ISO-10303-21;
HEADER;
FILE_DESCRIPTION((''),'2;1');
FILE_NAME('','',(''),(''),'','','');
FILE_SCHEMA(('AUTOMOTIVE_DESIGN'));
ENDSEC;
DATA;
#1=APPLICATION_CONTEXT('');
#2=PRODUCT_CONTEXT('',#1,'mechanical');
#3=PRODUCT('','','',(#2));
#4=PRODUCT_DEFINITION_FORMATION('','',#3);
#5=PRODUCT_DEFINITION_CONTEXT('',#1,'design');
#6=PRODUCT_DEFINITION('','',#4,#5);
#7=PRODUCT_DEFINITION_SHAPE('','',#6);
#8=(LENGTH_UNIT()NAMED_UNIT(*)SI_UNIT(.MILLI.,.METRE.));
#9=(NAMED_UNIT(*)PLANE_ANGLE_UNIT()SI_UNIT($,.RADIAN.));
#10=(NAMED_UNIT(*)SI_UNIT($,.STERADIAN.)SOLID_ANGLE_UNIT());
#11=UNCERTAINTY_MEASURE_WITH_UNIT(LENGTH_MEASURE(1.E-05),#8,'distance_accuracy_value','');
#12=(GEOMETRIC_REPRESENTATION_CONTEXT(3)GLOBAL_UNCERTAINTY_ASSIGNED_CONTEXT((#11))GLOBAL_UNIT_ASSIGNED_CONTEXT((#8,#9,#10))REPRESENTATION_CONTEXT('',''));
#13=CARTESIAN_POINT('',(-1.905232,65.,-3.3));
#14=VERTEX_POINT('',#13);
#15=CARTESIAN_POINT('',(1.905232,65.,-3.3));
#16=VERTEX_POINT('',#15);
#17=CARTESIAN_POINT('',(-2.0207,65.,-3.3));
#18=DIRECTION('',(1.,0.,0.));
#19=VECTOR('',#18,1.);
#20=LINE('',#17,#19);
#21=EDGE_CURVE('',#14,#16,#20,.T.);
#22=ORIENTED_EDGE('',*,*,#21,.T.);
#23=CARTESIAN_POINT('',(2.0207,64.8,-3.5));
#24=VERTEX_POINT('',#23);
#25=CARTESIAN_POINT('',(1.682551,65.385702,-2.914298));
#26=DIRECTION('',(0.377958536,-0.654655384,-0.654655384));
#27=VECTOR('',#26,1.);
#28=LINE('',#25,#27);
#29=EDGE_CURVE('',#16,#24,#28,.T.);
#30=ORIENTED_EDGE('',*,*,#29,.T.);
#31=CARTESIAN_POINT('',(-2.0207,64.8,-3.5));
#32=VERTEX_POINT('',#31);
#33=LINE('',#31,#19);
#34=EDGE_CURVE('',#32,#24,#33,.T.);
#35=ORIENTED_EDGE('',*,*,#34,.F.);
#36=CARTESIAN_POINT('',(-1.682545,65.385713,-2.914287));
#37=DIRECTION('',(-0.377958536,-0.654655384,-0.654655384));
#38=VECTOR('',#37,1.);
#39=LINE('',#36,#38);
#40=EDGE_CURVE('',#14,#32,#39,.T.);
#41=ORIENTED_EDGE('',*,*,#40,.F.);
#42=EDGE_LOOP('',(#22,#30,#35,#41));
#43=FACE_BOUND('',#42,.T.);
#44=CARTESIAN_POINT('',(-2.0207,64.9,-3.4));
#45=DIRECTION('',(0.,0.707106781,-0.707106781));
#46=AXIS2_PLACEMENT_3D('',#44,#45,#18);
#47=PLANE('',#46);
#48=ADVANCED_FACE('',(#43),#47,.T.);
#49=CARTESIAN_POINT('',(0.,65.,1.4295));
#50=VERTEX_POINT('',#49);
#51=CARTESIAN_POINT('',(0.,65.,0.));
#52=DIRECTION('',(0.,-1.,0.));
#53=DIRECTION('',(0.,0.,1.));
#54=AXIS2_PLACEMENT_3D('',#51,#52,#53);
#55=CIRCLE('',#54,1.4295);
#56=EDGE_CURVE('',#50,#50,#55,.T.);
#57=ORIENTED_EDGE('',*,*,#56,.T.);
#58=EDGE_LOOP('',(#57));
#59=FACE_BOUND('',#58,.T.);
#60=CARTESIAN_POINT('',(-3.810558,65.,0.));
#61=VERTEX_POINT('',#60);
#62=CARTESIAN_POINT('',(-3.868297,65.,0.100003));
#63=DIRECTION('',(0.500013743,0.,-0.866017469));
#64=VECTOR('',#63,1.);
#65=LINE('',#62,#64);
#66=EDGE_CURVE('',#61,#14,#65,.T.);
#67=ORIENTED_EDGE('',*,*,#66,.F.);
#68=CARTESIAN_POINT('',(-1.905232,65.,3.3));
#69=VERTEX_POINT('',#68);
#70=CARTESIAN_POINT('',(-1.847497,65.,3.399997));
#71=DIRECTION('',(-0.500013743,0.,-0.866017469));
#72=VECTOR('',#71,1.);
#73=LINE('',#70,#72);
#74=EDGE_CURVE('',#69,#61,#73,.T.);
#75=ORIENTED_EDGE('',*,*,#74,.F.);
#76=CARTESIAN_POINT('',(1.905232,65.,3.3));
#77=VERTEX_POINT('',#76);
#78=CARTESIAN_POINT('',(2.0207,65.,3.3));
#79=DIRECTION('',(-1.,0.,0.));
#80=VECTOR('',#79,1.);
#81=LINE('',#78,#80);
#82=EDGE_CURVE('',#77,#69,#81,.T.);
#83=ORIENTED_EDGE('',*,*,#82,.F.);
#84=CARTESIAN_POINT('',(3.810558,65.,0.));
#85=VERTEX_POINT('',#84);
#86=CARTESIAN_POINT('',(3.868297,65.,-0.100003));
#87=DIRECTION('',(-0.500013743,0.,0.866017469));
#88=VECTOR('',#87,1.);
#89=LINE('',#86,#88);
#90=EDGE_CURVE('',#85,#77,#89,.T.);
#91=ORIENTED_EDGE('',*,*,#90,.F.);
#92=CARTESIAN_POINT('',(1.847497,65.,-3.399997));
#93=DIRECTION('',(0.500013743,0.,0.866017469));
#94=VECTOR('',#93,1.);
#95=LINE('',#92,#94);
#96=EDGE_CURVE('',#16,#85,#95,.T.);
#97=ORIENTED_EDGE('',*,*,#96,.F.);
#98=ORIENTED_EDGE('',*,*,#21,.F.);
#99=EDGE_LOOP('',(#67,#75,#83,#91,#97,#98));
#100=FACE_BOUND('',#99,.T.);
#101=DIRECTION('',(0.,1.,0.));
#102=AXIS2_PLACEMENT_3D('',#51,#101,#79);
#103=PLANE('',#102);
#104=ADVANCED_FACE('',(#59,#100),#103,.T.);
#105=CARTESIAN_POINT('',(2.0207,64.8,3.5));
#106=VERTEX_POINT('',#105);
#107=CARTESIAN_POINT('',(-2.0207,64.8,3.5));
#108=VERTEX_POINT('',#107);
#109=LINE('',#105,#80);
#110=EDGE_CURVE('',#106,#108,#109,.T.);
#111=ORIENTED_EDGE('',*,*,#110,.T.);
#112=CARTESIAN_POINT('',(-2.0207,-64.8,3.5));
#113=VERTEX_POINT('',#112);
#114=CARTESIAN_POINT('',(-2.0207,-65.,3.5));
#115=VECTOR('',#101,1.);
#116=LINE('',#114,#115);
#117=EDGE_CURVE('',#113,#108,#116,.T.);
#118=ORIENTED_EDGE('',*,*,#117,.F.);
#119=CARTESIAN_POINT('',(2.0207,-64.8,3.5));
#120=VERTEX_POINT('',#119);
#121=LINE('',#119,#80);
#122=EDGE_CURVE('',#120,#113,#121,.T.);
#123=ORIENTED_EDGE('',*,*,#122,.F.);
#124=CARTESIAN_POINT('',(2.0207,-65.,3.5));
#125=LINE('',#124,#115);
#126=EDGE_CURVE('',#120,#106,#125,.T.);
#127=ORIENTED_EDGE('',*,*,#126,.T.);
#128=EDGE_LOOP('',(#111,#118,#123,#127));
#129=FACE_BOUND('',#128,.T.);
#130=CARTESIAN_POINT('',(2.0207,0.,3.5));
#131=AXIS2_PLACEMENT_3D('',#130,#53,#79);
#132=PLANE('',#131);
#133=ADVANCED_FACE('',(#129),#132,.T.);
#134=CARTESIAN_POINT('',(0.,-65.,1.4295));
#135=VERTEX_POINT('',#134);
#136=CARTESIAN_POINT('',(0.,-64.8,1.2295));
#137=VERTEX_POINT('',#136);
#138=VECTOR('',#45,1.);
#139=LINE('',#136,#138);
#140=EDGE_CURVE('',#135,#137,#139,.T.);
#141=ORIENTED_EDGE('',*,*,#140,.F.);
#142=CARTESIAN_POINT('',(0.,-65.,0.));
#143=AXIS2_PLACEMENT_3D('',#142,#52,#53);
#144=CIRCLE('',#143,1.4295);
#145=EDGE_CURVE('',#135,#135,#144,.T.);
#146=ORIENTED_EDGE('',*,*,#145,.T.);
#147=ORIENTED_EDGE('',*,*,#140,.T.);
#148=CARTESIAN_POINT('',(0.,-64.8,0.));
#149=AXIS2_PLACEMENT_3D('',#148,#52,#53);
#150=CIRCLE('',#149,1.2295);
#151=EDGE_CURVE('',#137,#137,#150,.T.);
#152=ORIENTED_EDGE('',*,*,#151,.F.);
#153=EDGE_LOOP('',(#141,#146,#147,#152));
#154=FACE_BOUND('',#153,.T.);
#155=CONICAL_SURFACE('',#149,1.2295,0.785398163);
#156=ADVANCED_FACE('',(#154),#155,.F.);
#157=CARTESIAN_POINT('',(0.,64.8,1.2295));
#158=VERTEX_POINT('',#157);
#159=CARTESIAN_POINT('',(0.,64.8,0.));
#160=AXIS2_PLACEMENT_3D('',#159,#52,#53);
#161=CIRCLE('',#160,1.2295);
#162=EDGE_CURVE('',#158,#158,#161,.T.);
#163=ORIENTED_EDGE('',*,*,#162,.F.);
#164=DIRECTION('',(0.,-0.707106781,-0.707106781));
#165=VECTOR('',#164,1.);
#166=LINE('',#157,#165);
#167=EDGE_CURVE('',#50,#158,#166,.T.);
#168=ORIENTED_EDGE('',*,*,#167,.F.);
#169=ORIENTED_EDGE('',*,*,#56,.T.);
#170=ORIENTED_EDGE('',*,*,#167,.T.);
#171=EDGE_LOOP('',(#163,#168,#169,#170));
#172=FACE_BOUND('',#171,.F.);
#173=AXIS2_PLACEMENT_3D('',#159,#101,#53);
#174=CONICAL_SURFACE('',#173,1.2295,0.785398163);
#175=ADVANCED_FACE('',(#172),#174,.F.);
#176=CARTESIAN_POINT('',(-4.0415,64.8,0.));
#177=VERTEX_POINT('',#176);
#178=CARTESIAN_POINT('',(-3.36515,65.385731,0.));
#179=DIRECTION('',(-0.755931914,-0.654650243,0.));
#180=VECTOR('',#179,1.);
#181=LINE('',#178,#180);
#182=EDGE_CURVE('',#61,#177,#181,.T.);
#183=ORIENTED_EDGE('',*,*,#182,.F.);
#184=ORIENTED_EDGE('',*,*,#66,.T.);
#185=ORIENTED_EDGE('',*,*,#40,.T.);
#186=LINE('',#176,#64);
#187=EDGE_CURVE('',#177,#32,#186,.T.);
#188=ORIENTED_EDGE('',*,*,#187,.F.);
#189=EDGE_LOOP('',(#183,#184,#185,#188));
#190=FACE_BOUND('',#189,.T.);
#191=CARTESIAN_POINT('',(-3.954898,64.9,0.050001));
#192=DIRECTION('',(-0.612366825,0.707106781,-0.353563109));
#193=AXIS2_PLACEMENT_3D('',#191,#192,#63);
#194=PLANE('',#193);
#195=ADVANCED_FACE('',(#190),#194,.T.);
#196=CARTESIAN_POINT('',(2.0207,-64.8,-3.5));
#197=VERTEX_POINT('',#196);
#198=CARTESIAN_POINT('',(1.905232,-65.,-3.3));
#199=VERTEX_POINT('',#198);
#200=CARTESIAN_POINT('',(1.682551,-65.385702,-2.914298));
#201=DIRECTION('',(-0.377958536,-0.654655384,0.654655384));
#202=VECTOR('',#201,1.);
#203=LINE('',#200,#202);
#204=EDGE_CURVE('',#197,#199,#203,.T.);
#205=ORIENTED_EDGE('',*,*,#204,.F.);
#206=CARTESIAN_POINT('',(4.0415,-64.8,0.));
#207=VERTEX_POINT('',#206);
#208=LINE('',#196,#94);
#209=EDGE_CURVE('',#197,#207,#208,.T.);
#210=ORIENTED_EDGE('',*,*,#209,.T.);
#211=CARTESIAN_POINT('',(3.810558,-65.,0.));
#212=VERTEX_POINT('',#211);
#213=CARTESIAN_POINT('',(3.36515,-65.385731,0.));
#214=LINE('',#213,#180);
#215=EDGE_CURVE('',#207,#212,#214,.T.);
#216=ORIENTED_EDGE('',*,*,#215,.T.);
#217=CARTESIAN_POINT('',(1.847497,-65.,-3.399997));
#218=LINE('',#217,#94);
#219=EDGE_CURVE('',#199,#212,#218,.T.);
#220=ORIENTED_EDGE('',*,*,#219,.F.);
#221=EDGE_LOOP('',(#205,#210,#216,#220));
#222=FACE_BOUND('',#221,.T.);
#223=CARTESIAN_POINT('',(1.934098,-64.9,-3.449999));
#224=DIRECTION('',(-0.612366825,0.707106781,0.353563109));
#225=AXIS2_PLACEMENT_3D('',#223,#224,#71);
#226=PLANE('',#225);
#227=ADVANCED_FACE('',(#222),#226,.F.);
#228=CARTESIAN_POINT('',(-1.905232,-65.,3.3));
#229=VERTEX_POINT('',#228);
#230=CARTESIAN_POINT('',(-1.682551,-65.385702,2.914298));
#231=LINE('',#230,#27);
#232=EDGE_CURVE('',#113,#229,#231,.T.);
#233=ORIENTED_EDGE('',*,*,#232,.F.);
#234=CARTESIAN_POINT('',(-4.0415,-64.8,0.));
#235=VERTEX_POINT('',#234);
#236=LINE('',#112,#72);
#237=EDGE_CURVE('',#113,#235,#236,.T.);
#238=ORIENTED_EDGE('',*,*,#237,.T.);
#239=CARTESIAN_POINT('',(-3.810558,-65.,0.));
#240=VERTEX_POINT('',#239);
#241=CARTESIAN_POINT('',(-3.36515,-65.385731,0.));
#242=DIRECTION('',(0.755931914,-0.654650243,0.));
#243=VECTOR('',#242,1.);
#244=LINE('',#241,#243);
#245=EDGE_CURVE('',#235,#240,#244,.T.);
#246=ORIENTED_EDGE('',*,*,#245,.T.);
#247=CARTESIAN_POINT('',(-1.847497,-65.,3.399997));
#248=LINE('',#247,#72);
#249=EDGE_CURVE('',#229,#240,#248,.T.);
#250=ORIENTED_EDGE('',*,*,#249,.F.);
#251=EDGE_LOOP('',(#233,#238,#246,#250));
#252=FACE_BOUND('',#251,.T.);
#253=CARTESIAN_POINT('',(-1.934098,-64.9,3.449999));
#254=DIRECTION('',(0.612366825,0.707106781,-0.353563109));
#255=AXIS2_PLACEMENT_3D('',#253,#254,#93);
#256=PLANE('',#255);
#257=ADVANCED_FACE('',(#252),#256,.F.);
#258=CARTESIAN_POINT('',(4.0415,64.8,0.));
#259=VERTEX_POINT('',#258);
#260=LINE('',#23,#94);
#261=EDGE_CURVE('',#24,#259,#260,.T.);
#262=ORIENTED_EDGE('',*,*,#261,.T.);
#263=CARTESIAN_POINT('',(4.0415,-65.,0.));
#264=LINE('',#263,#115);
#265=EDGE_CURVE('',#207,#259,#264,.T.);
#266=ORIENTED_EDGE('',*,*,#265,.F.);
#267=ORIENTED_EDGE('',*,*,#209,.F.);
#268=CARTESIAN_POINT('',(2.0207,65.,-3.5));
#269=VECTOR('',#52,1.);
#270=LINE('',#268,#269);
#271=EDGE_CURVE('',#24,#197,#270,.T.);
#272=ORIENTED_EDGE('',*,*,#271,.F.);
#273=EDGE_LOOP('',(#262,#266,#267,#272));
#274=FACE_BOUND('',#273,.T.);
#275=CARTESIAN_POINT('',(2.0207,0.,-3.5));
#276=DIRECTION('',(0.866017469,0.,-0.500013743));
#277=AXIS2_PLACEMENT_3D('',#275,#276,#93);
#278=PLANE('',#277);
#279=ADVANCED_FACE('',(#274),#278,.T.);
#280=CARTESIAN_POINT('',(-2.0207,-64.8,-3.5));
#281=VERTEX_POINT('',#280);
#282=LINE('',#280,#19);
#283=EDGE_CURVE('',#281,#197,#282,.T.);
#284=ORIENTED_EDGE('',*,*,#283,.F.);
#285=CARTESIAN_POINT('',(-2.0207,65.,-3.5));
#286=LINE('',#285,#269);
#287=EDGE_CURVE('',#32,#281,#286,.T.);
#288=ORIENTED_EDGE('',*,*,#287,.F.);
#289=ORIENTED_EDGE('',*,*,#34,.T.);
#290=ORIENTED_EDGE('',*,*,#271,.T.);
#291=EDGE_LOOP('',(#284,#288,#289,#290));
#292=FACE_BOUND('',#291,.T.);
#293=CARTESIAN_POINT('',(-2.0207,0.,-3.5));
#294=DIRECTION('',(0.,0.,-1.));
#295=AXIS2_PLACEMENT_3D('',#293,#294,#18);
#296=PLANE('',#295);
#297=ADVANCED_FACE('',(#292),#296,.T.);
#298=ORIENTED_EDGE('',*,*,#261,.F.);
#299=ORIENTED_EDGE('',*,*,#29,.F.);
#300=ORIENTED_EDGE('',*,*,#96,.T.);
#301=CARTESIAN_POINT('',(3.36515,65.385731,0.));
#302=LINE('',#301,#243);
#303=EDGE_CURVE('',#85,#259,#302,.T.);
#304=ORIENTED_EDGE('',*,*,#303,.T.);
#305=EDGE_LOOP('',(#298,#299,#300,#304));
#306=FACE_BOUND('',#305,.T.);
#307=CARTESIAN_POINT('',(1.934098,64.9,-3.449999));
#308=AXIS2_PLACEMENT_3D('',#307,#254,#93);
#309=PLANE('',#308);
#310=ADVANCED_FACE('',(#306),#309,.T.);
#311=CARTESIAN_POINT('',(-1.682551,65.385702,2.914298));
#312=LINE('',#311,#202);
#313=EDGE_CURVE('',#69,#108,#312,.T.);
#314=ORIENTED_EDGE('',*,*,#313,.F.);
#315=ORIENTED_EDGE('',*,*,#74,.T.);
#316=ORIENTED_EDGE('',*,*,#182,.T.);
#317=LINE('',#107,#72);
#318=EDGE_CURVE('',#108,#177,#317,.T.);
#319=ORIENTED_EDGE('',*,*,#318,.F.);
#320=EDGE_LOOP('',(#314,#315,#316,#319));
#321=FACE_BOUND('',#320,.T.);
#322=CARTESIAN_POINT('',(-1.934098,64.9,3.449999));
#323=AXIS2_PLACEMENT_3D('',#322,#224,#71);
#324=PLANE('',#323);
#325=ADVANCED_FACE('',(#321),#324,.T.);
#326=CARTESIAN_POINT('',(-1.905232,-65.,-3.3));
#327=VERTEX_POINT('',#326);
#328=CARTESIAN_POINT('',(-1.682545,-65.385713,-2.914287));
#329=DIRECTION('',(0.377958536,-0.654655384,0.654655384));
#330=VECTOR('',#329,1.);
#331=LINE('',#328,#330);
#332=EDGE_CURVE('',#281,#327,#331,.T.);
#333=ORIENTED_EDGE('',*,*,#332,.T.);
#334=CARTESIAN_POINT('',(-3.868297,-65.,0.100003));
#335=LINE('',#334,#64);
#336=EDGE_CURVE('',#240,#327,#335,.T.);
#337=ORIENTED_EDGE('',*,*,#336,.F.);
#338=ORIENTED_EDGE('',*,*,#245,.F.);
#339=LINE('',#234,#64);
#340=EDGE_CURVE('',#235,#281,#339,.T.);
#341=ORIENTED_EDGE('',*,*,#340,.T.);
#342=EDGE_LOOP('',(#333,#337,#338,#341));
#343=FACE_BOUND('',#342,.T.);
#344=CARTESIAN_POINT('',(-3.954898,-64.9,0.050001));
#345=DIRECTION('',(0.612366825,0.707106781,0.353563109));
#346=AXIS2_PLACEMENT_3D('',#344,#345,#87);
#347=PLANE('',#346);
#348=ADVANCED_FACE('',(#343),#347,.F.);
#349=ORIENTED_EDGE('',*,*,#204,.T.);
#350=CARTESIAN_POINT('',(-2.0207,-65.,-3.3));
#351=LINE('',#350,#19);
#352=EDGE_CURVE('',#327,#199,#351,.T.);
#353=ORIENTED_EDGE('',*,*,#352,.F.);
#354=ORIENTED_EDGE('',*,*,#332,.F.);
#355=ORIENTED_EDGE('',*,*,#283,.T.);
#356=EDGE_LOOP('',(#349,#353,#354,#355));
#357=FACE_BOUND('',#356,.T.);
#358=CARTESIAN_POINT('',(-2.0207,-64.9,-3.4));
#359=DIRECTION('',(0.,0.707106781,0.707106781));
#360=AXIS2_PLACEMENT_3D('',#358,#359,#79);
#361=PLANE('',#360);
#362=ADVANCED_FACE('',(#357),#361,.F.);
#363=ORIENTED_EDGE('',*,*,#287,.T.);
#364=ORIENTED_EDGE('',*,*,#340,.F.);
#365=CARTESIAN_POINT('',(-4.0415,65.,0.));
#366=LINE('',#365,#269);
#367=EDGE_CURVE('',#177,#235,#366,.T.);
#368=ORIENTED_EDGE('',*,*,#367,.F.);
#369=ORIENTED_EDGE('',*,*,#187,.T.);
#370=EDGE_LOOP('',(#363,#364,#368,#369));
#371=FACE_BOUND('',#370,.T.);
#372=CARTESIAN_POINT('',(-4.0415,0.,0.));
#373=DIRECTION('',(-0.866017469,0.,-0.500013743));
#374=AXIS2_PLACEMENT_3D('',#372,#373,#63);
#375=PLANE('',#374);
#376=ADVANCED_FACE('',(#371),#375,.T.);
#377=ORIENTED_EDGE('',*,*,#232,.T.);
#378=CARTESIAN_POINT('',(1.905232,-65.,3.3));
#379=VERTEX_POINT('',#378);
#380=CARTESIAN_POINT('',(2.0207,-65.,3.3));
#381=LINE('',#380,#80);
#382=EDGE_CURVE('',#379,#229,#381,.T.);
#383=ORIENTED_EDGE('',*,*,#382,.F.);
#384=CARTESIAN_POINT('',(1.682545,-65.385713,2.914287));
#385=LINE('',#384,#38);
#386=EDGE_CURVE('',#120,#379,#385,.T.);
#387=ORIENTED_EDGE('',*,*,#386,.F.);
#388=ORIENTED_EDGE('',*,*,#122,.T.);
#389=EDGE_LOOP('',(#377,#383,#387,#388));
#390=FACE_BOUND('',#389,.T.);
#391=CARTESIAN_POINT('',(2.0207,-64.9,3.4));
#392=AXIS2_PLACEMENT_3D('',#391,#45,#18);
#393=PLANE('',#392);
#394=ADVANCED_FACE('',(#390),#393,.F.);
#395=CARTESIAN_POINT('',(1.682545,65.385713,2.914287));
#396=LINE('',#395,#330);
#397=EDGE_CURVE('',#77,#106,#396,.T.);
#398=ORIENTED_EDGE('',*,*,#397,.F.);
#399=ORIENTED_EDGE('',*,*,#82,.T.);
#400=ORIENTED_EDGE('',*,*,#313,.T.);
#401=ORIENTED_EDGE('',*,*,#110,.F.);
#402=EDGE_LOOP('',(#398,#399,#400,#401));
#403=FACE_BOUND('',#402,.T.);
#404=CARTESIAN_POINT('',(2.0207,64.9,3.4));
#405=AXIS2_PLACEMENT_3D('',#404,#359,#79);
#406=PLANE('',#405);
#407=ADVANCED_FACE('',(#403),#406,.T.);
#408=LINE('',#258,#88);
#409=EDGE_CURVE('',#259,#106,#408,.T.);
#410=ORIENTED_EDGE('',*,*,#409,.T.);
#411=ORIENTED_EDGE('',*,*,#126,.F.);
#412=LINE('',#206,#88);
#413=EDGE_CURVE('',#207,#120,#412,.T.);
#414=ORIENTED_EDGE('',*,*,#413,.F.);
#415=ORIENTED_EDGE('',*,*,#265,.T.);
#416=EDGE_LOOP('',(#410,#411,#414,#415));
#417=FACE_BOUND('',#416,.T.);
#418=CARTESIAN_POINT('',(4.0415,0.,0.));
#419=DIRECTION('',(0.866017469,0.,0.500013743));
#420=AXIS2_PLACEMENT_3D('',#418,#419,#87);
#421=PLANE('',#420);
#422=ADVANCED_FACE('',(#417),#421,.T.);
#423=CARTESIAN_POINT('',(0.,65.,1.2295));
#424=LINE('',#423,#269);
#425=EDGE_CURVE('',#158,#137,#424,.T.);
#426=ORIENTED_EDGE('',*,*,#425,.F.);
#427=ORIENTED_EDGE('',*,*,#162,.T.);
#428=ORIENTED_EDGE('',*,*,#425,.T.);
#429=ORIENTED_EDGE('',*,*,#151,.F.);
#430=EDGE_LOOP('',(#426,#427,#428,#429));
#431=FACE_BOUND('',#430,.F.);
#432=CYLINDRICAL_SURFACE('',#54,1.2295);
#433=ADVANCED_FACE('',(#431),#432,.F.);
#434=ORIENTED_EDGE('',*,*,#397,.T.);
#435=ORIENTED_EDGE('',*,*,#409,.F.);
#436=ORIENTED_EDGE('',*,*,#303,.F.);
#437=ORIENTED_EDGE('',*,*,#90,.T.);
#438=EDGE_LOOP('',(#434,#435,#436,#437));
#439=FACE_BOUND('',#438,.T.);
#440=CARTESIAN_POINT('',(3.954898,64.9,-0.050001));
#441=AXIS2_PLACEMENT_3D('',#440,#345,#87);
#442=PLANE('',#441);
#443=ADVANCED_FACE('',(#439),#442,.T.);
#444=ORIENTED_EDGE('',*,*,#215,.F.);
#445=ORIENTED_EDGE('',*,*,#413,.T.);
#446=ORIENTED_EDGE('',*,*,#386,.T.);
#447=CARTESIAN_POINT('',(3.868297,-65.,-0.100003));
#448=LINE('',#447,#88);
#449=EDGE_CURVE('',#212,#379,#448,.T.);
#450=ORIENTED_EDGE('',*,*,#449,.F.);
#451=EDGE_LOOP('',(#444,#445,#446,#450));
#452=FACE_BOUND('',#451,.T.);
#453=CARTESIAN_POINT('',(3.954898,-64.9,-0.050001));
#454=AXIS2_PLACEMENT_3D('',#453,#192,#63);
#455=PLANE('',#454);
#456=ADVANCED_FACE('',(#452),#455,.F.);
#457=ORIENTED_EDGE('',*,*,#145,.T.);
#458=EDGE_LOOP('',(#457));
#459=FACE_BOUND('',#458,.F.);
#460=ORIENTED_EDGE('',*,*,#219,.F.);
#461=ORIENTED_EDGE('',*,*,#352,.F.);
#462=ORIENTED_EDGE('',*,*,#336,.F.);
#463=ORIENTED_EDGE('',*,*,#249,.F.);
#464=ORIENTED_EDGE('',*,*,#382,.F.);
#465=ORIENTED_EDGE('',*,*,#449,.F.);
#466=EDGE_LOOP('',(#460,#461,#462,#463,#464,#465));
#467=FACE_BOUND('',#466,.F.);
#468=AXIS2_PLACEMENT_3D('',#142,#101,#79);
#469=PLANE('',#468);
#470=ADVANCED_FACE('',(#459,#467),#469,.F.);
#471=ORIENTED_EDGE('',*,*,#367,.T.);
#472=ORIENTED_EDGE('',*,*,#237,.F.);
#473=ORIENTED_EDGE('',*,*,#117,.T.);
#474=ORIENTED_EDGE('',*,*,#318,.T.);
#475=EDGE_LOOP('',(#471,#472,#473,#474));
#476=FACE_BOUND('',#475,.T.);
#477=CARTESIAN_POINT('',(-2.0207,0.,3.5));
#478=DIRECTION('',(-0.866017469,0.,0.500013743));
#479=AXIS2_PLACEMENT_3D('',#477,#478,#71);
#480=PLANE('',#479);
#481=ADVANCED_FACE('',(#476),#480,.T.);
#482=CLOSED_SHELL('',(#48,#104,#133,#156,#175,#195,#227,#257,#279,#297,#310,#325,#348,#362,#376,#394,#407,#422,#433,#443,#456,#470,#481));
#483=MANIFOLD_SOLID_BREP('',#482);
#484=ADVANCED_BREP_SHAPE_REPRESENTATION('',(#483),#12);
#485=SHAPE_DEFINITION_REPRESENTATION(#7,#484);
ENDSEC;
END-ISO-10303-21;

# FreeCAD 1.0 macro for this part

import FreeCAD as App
import Part
import Sketcher

V = App.Vector
Q = App.Units.Quantity


def edges_at(feature, points):
    """Names of the edges that pass closest to the given points."""
    edges = feature.Shape.Edges
    near = lambda p: min(range(len(edges)), key=lambda i: edges[i].distToShape(Part.Vertex(*p))[0])
    return sorted({f"Edge{near(p) + 1}" for p in points})


def add_polygon(sketch, points):
    """Adds a closed chain of lines whose ends are joined by coincident constraints."""
    first, n = sketch.GeometryCount, len(points)
    for a, b in zip(points, points[1:] + points[:1]):
        sketch.addGeometry(Part.LineSegment(App.Vector(*a, 0), App.Vector(*b, 0)), False)
    for i in range(n):
        sketch.addConstraint(Sketcher.Constraint("Coincident", first + i, 2, first + (i + 1) % n, 1))

doc = App.newDocument("Part")
body = doc.addObject("PartDesign::Body", "Body")

# Sketch on XZ plane
sketch1 = doc.addObject("Sketcher::SketchObject", "Sketch")
body.addObject(sketch1)
sketch1.AttachmentSupport = (doc.XZ_Plane, [""])
sketch1.MapMode = "FlatFace"
add_polygon(sketch1, [(-4.0415, 0), (-2.0207, 3.5), (2.0207, 3.5), (4.0415, 0), (2.0207, -3.5), (-2.0207, -3.5)])  # lines 0-5
sketch1.addConstraint(Sketcher.Constraint("Horizontal", 1))
sketch1.addConstraint(Sketcher.Constraint("Horizontal", 4))
sketch1.addConstraint(Sketcher.Constraint("Symmetric", 0, 2, 3, 2, -1, 1))
sketch1.addConstraint(Sketcher.Constraint("Symmetric", 2, 2, 5, 2, -1, 1))
sketch1.addConstraint(Sketcher.Constraint("PointOnObject", 2, 2, -1))
sketch1.addConstraint(Sketcher.Constraint("Parallel", 2, 5))
sketch1.addConstraint(Sketcher.Constraint("Vertical", 1, 2, 3, 2))
sketch1.addConstraint(Sketcher.Constraint("DistanceY", 3, 2, 1, 2, Q("7 mm")))
sketch1.addConstraint(Sketcher.Constraint("Angle", 0, Q("59.999 deg")))
sketch1.addConstraint(Sketcher.Constraint("DistanceX", 1, 1, 1, 2, Q("4.0414 mm")))
pad1 = doc.addObject("PartDesign::Pad", "Pad")
body.addObject(pad1)
pad1.Profile = sketch1
pad1.Length = 130
pad1.Midplane = True

# Sketch on XZ plane
sketch2 = doc.addObject("Sketcher::SketchObject", "Sketch001")
body.addObject(sketch2)
sketch2.AttachmentSupport = (doc.XZ_Plane, [""])
sketch2.MapMode = "FlatFace"
sketch2.AttachmentOffset = App.Placement(V(0, 0, -65), App.Rotation())
sketch2.addGeometry(Part.Circle(V(0, 0, 0), V(0, 0, 1), 1.2295), False)
sketch2.addConstraint(Sketcher.Constraint("Coincident", 0, 3, -1, 1))
sketch2.addConstraint(Sketcher.Constraint("Diameter", 0, Q("2.459 mm")))
doc.recompute()
hole = doc.addObject("PartDesign::Hole", "Hole")
body.addObject(hole)
hole.Profile = sketch2
hole.ThreadType = "None"
hole.Diameter = 2.459
hole.DepthType = "ThroughAll"
hole.Reversed = True
doc.recompute()

chamfer = doc.addObject("PartDesign::Chamfer", "Chamfer")
body.addObject(chamfer)
chamfer.Base = (hole, edges_at(hole, [(0, 65, -1.23), (0, -65, -1.23)]))
chamfer.Size = 0.2
doc.recompute()

chamfer2 = doc.addObject("PartDesign::Chamfer", "Chamfer001")
body.addObject(chamfer2)
chamfer2.Base = (chamfer, edges_at(chamfer, [
    (0, 65, 3.5),
    (-3.031, 65, 1.75),
    (-3.031, 65, -1.75),
    (0, 65, -3.5),
    (3.031, 65, -1.75),
    (3.031, 65, 1.75),
    (3.031, -65, 1.75),
    (3.031, -65, -1.75),
    (0, -65, 3.5),
    (-3.031, -65, 1.75),
    (-3.031, -65, -1.75),
    (0, -65, -3.5),
]))
chamfer2.Size = 0.2

doc.recompute()
